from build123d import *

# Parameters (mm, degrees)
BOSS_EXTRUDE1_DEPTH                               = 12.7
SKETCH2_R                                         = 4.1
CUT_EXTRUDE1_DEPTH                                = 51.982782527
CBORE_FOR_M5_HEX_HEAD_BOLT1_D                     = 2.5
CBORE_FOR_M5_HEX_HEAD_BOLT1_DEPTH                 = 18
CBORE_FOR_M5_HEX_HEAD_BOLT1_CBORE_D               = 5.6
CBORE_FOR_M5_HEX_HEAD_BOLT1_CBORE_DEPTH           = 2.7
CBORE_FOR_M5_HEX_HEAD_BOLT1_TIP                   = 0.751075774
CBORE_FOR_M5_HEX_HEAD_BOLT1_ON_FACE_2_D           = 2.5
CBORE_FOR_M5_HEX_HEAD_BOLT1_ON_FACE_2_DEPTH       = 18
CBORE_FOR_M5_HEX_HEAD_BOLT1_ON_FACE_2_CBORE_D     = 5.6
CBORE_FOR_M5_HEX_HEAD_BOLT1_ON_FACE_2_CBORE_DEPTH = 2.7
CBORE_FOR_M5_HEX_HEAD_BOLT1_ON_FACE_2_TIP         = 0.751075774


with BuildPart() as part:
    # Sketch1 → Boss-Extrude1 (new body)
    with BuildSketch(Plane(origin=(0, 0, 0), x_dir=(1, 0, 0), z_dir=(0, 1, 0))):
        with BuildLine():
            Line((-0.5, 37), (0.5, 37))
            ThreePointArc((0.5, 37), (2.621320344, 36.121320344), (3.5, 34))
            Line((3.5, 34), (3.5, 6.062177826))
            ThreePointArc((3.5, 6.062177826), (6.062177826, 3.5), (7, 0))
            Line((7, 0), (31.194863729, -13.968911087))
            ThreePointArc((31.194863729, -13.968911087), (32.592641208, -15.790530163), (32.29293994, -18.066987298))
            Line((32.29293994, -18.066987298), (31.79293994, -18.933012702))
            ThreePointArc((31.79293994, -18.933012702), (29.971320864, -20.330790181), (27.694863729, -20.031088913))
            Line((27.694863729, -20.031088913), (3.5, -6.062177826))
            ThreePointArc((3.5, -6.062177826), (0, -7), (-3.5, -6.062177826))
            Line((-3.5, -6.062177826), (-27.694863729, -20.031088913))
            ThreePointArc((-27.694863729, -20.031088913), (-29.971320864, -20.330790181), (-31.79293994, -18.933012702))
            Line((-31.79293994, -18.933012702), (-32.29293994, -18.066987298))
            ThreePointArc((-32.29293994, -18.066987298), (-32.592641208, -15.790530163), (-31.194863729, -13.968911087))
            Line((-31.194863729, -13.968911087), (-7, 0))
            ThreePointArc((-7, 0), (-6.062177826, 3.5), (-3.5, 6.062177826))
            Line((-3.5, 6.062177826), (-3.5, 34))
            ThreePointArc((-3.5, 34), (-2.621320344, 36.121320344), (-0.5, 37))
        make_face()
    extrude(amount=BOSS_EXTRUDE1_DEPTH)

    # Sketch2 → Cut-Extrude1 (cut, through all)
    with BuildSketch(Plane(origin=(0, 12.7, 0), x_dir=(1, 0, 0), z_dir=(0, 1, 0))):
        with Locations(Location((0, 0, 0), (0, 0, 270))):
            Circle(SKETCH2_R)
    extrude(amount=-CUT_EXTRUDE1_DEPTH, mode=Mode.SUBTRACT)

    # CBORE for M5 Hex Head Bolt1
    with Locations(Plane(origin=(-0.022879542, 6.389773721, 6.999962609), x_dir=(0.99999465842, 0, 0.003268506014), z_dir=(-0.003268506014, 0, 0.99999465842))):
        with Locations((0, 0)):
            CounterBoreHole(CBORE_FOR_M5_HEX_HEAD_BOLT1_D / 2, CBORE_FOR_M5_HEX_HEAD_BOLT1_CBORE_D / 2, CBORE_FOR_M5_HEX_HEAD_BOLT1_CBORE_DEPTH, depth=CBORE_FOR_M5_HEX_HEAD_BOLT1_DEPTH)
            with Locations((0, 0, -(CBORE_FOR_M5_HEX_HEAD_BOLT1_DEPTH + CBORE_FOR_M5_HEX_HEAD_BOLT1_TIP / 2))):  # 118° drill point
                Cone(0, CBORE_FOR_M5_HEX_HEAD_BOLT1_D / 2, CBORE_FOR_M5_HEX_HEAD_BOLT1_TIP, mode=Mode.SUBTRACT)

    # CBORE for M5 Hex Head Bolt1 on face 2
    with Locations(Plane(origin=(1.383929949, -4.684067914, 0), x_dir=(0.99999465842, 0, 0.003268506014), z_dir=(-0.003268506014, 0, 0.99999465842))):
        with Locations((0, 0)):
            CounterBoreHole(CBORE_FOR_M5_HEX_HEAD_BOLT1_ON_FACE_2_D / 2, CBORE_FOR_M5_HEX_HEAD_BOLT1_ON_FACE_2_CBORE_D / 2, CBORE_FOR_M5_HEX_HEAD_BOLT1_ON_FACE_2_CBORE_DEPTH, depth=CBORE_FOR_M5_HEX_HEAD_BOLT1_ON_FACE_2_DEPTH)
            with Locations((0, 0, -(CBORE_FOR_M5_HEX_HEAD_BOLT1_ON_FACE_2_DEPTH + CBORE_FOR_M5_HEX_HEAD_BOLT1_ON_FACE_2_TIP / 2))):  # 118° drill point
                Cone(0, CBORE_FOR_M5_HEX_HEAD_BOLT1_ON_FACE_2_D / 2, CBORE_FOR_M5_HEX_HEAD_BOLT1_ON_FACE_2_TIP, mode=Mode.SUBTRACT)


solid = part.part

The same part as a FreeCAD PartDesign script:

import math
import FreeCAD as App
import Part
import Sketcher

V = App.Vector

doc = App.newDocument("Part")
body = doc.addObject("PartDesign::Body", "Body")

sketch1 = doc.addObject("Sketcher::SketchObject", "Sketch")
body.addObject(sketch1)
sketch1.AttachmentSupport = (doc.XZ_Plane, [""])
sketch1.MapMode = "FlatFace"
sketch1.addGeometry([
    Part.LineSegment(V(0.5, -37, 0), V(-0.5, -37, 0)),
    Part.ArcOfCircle(Part.Circle(V(-0.5, -34, 0), V(0, 0, 1), 3), math.radians(180), math.radians(270)),
    Part.LineSegment(V(-3.5, -34, 0), V(-3.5, -6.1, 0)),
    Part.ArcOfCircle(Part.Circle(V(0, 0, 0), V(0, 0, 1), 7), math.radians(-180), math.radians(-120)),
    Part.LineSegment(V(-7, 0, 0), V(-31.2, 14, 0)),
    Part.ArcOfCircle(Part.Circle(V(-29.7, 16.6, 0), V(0, 0, 1), 3), math.radians(150), math.radians(240)),
    Part.LineSegment(V(-32.3, 18.1, 0), V(-31.8, 18.9, 0)),
    Part.ArcOfCircle(Part.Circle(V(-29.2, 17.4, 0), V(0, 0, 1), 3), math.radians(60), math.radians(150)),
    Part.LineSegment(V(-27.7, 20, 0), V(-3.5, 6.1, 0)),
    Part.ArcOfCircle(Part.Circle(V(0, 0, 0), V(0, 0, 1), 7), math.radians(60), math.radians(120)),
    Part.LineSegment(V(3.5, 6.1, 0), V(27.7, 20, 0)),
    Part.ArcOfCircle(Part.Circle(V(29.2, 17.4, 0), V(0, 0, 1), 3), math.radians(30), math.radians(120)),
    Part.LineSegment(V(31.8, 18.9, 0), V(32.3, 18.1, 0)),
    Part.ArcOfCircle(Part.Circle(V(29.7, 16.6, 0), V(0, 0, 1), 3), math.radians(-60), math.radians(30)),
    Part.LineSegment(V(31.2, 14, 0), V(7, 0, 0)),
    Part.ArcOfCircle(Part.Circle(V(0, 0, 0), V(0, 0, 1), 7), math.radians(-60), math.radians(0)),
    Part.LineSegment(V(3.5, -6.1, 0), V(3.5, -34, 0)),
    Part.ArcOfCircle(Part.Circle(V(0.5, -34, 0), V(0, 0, 1), 3), math.radians(-90), math.radians(0)),
], False)
sketch1.addConstraint([
    Sketcher.Constraint("Tangent", 0, 2, 1, 2),
    Sketcher.Constraint("Tangent", 1, 1, 2, 1),
    Sketcher.Constraint("Coincident", 2, 2, 3, 2),
    Sketcher.Constraint("Coincident", 3, 1, 4, 1),
    Sketcher.Constraint("Tangent", 4, 2, 5, 2),
    Sketcher.Constraint("Tangent", 5, 1, 6, 1),
    Sketcher.Constraint("Tangent", 6, 2, 7, 2),
    Sketcher.Constraint("Tangent", 7, 1, 8, 1),
    Sketcher.Constraint("Coincident", 8, 2, 9, 2),
    Sketcher.Constraint("Coincident", 9, 1, 10, 1),
    Sketcher.Constraint("Tangent", 10, 2, 11, 2),
    Sketcher.Constraint("Tangent", 11, 1, 12, 1),
    Sketcher.Constraint("Tangent", 12, 2, 13, 2),
    Sketcher.Constraint("Tangent", 13, 1, 14, 1),
    Sketcher.Constraint("Coincident", 14, 2, 15, 2),
    Sketcher.Constraint("Coincident", 15, 1, 16, 1),
    Sketcher.Constraint("Tangent", 16, 2, 17, 2),
    Sketcher.Constraint("Tangent", 17, 1, 0, 1),
    Sketcher.Constraint("Horizontal", 0),
    Sketcher.Constraint("Vertical", 2),
    Sketcher.Constraint("Vertical", 16),
    Sketcher.Constraint("Coincident", 3, 3, -1, 1),
    Sketcher.Constraint("Coincident", 9, 3, -1, 1),
    Sketcher.Constraint("Coincident", 15, 3, -1, 1),
    Sketcher.Constraint("Equal", 1, 5),
    Sketcher.Constraint("Equal", 5, 7),
    Sketcher.Constraint("Equal", 3, 9),
    Sketcher.Constraint("Equal", 7, 11),
    Sketcher.Constraint("Equal", 11, 13),
    Sketcher.Constraint("Equal", 9, 15),
    Sketcher.Constraint("Equal", 13, 17),
    Sketcher.Constraint("Symmetric", 7, 3, 11, 3, -2),
    Sketcher.Constraint("Symmetric", 5, 3, 13, 3, -2),
    Sketcher.Constraint("PointOnObject", 3, 1, -1),
    Sketcher.Constraint("PointOnObject", 14, 2, -1),
    Sketcher.Constraint("Perpendicular", 4, 6),
    Sketcher.Constraint("Perpendicular", 6, 8),
    Sketcher.Constraint("Perpendicular", 10, 12),
    Sketcher.Constraint("Horizontal", 2, 2, 15, 1),
    Sketcher.Constraint("Vertical", 2, 2, 8, 2),
    Sketcher.Constraint("Equal", 4, 8),
    Sketcher.Constraint("Radius", 1, 3.0),
    Sketcher.Constraint("Radius", 3, 7.0),
    Sketcher.Constraint("DistanceX", 0, 2, 0, 1, 1.0),
    Sketcher.Constraint("DistanceY", 1, 3, -1, 1, 34.0),
    Sketcher.Constraint("DistanceY", -1, 1, 4, 2, 13.968911),
])
pad1 = doc.addObject("PartDesign::Pad", "Pad")
body.addObject(pad1)
pad1.Profile = sketch1
pad1.Length = 12.7
pad1.Reversed = True

sketch2 = doc.addObject("Sketcher::SketchObject", "Sketch001")
body.addObject(sketch2)
sketch2.AttachmentSupport = (doc.XZ_Plane, [""])
sketch2.MapMode = "FlatFace"
sketch2.AttachmentOffset = App.Placement(V(0, 0, -12.7), App.Rotation())
sketch2.addGeometry(Part.Circle(V(0, 0, 0), V(0, 0, 1), 4.1), False)
sketch2.addConstraint([
    Sketcher.Constraint("Coincident", 0, 3, -1, 1),
    Sketcher.Constraint("Diameter", 0, 8.2),
])
pocket1 = doc.addObject("PartDesign::Pocket", "Pocket")
body.addObject(pocket1)
pocket1.Profile = sketch2
pocket1.Type = "ThroughAll"
pocket1.Reversed = True

sketch3 = doc.addObject("Sketcher::SketchObject", "Sketch002")
body.addObject(sketch3)
sketch3.Placement = App.Placement(V(-0.02288, 0, 6.999963), App.Rotation(V(0.999994658, 0, 0.003268506), V(0, 0.999999999, 0), V(-0.003268506, 0, 0.999994658), "ZXY"))
sketch3.addGeometry(Part.Circle(V(0, 6.4, 0), V(0, 0, 1), 1.2), False)
sketch3.addConstraint([
    Sketcher.Constraint("PointOnObject", 0, 3, -2),
    Sketcher.Constraint("Diameter", 0, 2.5),
    Sketcher.Constraint("DistanceY", -1, 1, 0, 3, 6.389774),
])
doc.recompute()
hole = doc.addObject("PartDesign::Hole", "Hole")
body.addObject(hole)
hole.Profile = sketch3
hole.ThreadType = "None"
hole.Diameter = 2.5
hole.DepthType = "Dimension"
hole.Depth = 18
hole.DrillPoint = "Angled"
hole.DrillPointAngle = 118
hole.HoleCutType = "Counterbore"
hole.HoleCutDiameter = 5.6
hole.HoleCutDepth = 2.7

sketch4 = doc.addObject("Sketcher::SketchObject", "Sketch003")
body.addObject(sketch4)
sketch4.Placement = App.Placement(V(0.000015, 0, -0.004523), App.Rotation(V(0.999994658, 0, 0.003268506), V(0, 0.999999999, 0), V(-0.003268506, 0, 0.999994658), "ZXY"))
sketch4.addGeometry(Part.Circle(V(1.4, -4.7, 0), V(0, 0, 1), 1.2), False)
sketch4.addConstraint([
    Sketcher.Constraint("Diameter", 0, 2.5),
    Sketcher.Constraint("DistanceX", -1, 1, 0, 3, 1.383923),
    Sketcher.Constraint("DistanceY", 0, 3, -1, 1, 4.684068),
])
doc.recompute()
hole2 = doc.addObject("PartDesign::Hole", "Hole001")
body.addObject(hole2)
hole2.Profile = sketch4
hole2.ThreadType = "None"
hole2.Diameter = 2.5
hole2.DepthType = "Dimension"
hole2.Depth = 18
hole2.DrillPoint = "Angled"
hole2.DrillPointAngle = 118
hole2.HoleCutType = "Counterbore"
hole2.HoleCutDiameter = 5.6
hole2.HoleCutDepth = 2.7

doc.recompute()
